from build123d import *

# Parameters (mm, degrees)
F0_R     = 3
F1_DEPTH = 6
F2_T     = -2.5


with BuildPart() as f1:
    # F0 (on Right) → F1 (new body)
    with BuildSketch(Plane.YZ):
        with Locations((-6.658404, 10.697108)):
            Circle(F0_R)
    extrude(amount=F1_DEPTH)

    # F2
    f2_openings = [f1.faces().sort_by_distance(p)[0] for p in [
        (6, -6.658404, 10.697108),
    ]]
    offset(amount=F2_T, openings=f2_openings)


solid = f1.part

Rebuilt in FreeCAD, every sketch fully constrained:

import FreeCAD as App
import Part
import Sketcher

V = App.Vector


def faces_at(feature, points):
    """Names of the faces that lie closest to the given points."""
    faces = feature.Shape.Faces
    near = lambda p: min(range(len(faces)), key=lambda i: faces[i].distToShape(Part.Vertex(*p))[0])
    return sorted({f"Face{near(p) + 1}" for p in points})

doc = App.newDocument("Part")
params = doc.addObject("Spreadsheet::Sheet", "Params")
for row, (alias, value) in enumerate([
    ("sketch1_diameter", "6 mm"),
    ("pad1_length", "6 mm"),
    ("thickness_wall", "2.5 mm"),
], start=1):
    params.set(f"A{row}", alias)
    params.set(f"B{row}", "=" + value)
    params.setAlias(f"B{row}", alias)

body = doc.addObject("PartDesign::Body", "Body")

# Sketch on YZ plane
sketch1 = body.newObject("Sketcher::SketchObject", "Sketch")
sketch1.AttachmentSupport = (doc.getObject("YZ_Plane"), [""])
sketch1.MapMode = "FlatFace"
sketch1.addGeometry(Part.Circle(V(-6.7, 10.7, 0), V(0, 0, 1), 3), False)
sketch1.addConstraint([
    Sketcher.Constraint("Diameter", 0, 6.0),
    Sketcher.Constraint("DistanceX", 0, 3, -1, 1, 6.658404),
    Sketcher.Constraint("DistanceY", -1, 1, 0, 3, 10.697108),
])
sketch1.setExpression("Constraints[0]", "Params.sketch1_diameter")
pad1 = body.newObject("PartDesign::Pad", "Pad")
pad1.Profile = sketch1
pad1.setExpression("Length", "Params.pad1_length")
doc.recompute()

thickness = body.newObject("PartDesign::Thickness", "Thickness")
thickness.Base = (pad1, faces_at(pad1, [(6, -6.658, 10.697)]))
thickness.setExpression("Value", "Params.thickness_wall")
thickness.Reversed = True
thickness.Join = "Arc"

doc.recompute()
